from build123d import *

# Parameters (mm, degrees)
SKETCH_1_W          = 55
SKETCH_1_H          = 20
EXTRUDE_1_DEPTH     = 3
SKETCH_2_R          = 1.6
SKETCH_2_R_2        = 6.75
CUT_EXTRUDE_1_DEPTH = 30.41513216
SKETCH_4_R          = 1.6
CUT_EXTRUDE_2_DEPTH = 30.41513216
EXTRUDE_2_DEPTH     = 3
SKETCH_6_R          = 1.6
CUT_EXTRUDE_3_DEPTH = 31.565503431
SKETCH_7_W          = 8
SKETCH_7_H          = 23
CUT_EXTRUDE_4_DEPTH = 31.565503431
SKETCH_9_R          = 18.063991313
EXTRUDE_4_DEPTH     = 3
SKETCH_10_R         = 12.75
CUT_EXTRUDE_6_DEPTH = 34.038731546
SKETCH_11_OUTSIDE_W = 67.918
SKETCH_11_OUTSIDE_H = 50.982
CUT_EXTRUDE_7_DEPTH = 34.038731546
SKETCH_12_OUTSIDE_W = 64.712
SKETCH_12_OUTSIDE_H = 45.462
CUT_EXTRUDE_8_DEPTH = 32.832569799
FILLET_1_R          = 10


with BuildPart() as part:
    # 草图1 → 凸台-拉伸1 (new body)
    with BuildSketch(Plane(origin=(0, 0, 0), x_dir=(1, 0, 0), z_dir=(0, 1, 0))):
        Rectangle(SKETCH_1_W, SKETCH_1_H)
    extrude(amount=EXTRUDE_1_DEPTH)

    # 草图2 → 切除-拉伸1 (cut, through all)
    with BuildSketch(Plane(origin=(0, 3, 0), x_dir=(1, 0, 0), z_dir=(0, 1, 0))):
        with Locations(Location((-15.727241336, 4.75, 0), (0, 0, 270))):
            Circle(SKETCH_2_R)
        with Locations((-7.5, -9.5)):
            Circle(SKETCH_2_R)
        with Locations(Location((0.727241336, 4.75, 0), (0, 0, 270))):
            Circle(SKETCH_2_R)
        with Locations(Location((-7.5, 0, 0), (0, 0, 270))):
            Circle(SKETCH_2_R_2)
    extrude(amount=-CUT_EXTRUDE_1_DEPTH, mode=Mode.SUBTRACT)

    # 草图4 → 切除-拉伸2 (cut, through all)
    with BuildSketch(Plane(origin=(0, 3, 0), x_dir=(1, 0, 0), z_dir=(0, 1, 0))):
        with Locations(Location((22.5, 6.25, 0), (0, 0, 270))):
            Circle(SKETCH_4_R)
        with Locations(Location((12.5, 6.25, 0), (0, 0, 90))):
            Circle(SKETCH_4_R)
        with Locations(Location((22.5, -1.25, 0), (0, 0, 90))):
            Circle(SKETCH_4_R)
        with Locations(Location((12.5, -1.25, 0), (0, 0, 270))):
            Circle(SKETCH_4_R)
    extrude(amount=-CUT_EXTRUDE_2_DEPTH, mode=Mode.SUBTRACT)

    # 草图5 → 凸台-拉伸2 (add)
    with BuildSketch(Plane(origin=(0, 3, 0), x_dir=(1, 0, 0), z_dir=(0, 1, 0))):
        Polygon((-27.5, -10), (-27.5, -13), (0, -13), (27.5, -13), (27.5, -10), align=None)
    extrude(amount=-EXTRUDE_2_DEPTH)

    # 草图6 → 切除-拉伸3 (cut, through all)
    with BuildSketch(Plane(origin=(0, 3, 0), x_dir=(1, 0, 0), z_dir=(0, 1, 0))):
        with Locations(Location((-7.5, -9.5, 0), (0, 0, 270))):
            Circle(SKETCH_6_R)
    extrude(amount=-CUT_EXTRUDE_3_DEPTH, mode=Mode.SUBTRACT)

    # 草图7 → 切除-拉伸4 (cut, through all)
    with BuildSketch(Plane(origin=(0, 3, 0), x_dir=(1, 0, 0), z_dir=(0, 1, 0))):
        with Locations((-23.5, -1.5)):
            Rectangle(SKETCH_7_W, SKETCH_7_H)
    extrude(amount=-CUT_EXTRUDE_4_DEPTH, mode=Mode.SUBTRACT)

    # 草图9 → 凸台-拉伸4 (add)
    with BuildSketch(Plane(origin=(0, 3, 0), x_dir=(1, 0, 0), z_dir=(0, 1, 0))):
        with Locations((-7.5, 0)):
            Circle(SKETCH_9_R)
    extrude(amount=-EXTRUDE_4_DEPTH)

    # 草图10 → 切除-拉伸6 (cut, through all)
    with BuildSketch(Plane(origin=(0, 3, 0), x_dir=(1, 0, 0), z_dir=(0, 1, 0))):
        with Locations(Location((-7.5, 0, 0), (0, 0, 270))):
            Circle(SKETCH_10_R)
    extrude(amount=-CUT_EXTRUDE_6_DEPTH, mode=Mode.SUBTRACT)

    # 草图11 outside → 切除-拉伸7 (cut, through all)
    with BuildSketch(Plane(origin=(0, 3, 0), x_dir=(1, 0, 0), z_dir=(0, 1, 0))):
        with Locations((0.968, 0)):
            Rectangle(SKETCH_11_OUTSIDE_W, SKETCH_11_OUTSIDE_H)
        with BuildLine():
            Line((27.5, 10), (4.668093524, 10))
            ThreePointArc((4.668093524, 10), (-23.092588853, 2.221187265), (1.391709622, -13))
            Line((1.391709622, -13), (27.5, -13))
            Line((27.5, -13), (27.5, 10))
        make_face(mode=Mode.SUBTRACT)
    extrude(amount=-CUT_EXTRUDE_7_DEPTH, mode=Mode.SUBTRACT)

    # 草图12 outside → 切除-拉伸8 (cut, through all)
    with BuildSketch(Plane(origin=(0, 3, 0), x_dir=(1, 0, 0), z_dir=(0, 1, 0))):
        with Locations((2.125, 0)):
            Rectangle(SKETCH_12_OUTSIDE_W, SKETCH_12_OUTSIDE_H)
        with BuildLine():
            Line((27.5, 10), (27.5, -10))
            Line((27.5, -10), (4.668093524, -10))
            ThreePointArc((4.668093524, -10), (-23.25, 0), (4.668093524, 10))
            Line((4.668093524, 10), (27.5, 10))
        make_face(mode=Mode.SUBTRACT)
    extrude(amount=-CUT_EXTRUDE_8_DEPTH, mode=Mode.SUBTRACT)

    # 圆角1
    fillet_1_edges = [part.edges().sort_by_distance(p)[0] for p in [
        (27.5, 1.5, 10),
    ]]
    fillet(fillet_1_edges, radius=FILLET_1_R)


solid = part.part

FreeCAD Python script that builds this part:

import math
import FreeCAD as App
import Part
import Sketcher

V = App.Vector


def edges_at(feature, points):
    """Names of the edges that pass closest to the given points."""
    edges = feature.Shape.Edges
    near = lambda p: min(range(len(edges)), key=lambda i: edges[i].distToShape(Part.Vertex(*p))[0])
    return sorted({f"Edge{near(p) + 1}" for p in points})

doc = App.newDocument("Part")
body = doc.addObject("PartDesign::Body", "Body")

# Sketch on XZ plane
sketch1 = doc.addObject("Sketcher::SketchObject", "Sketch")
body.addObject(sketch1)
sketch1.AttachmentSupport = (doc.XZ_Plane, [""])
sketch1.MapMode = "FlatFace"
sketch1.addGeometry([
    Part.LineSegment(V(-28, -10, 0), V(-28, 10, 0)),
    Part.LineSegment(V(-28, 10, 0), V(28, 10, 0)),
    Part.LineSegment(V(28, 10, 0), V(28, -10, 0)),
    Part.LineSegment(V(28, -10, 0), V(-28, -10, 0)),
], False)
sketch1.addConstraint([
    Sketcher.Constraint("Coincident", 0, 2, 1, 1),
    Sketcher.Constraint("Coincident", 1, 2, 2, 1),
    Sketcher.Constraint("Coincident", 2, 2, 3, 1),
    Sketcher.Constraint("Coincident", 3, 2, 0, 1),
    Sketcher.Constraint("Vertical", 0),
    Sketcher.Constraint("Horizontal", 1),
    Sketcher.Constraint("Vertical", 2),
    Sketcher.Constraint("Horizontal", 3),
    Sketcher.Constraint("Symmetric", 0, 2, 2, 2, -1, 1),
    Sketcher.Constraint("DistanceX", 1, 1, 1, 2, 55.0),
    Sketcher.Constraint("DistanceY", 0, 1, 0, 2, 20.0),
])
pad1 = doc.addObject("PartDesign::Pad", "Pad")
body.addObject(pad1)
pad1.Profile = sketch1
pad1.Length = 3
pad1.Reversed = True

# Sketch on XZ plane
sketch2 = doc.addObject("Sketcher::SketchObject", "Sketch001")
body.addObject(sketch2)
sketch2.AttachmentSupport = (doc.XZ_Plane, [""])
sketch2.MapMode = "FlatFace"
sketch2.AttachmentOffset = App.Placement(V(0, 0, -3), App.Rotation())
sketch2.addGeometry([
    Part.Circle(V(-15.7, -4.8, 0), V(0, 0, 1), 1.6),
    Part.Circle(V(-7.5, 9.5, 0), V(0, 0, 1), 1.6),
    Part.Circle(V(0.7, -4.8, 0), V(0, 0, 1), 1.6),
    Part.Circle(V(-7.5, 0, 0), V(0, 0, 1), 6.8),
], False)
sketch2.addConstraint([
    Sketcher.Constraint("Equal", 0, 1),
    Sketcher.Constraint("Equal", 1, 2),
    Sketcher.Constraint("PointOnObject", 3, 3, -1),
    Sketcher.Constraint("Horizontal", 0, 3, 2, 3),
    Sketcher.Constraint("Vertical", 1, 3, 3, 3),
    Sketcher.Constraint("Diameter", 0, 3.2),
    Sketcher.Constraint("Diameter", 3, 13.5),
    Sketcher.Constraint("DistanceX", 1, 3, -1, 1, 7.5),
    Sketcher.Constraint("DistanceY", -1, 1, 1, 3, 9.5),
    Sketcher.Constraint("DistanceY", 0, 3, -1, 1, 4.75),
    Sketcher.Constraint("DistanceX", 0, 3, -1, 1, 15.727241),
    Sketcher.Constraint("DistanceX", -1, 1, 2, 3, 0.727241),
])
pocket1 = doc.addObject("PartDesign::Pocket", "Pocket")
body.addObject(pocket1)
pocket1.Profile = sketch2
pocket1.Type = "ThroughAll"
pocket1.Reversed = True

# Sketch on XZ plane
sketch3 = doc.addObject("Sketcher::SketchObject", "Sketch002")
body.addObject(sketch3)
sketch3.AttachmentSupport = (doc.XZ_Plane, [""])
sketch3.MapMode = "FlatFace"
sketch3.AttachmentOffset = App.Placement(V(0, 0, -3), App.Rotation())
sketch3.addGeometry([
    Part.Circle(V(22.5, -6.2, 0), V(0, 0, 1), 1.6),
    Part.Circle(V(12.5, -6.2, 0), V(0, 0, 1), 1.6),
    Part.Circle(V(22.5, 1.2, 0), V(0, 0, 1), 1.6),
    Part.Circle(V(12.5, 1.2, 0), V(0, 0, 1), 1.6),
], False)
sketch3.addConstraint([
    Sketcher.Constraint("Equal", 0, 1),
    Sketcher.Constraint("Equal", 1, 2),
    Sketcher.Constraint("Equal", 2, 3),
    Sketcher.Constraint("Horizontal", 0, 3, 1, 3),
    Sketcher.Constraint("Horizontal", 2, 3, 3, 3),
    Sketcher.Constraint("Vertical", 0, 3, 2, 3),
    Sketcher.Constraint("Vertical", 1, 3, 3, 3),
    Sketcher.Constraint("Diameter", 0, 3.2),
    Sketcher.Constraint("DistanceX", 1, 3, 0, 3, 10.0),
    Sketcher.Constraint("DistanceX", -1, 1, 0, 3, 22.5),
    Sketcher.Constraint("DistanceY", 0, 3, 2, 3, 7.5),
    Sketcher.Constraint("DistanceY", 0, 3, -1, 1, 6.25),
])
pocket2 = doc.addObject("PartDesign::Pocket", "Pocket001")
body.addObject(pocket2)
pocket2.Profile = sketch3
pocket2.Type = "ThroughAll"
pocket2.Reversed = True

# Sketch on XZ plane
sketch4 = doc.addObject("Sketcher::SketchObject", "Sketch003")
body.addObject(sketch4)
sketch4.AttachmentSupport = (doc.XZ_Plane, [""])
sketch4.MapMode = "FlatFace"
sketch4.AttachmentOffset = App.Placement(V(0, 0, -3), App.Rotation())
sketch4.addGeometry([
    Part.LineSegment(V(-27.5, 10, 0), V(-27.5, 13, 0)),
    Part.LineSegment(V(-27.5, 13, 0), V(27.5, 13, 0)),
    Part.LineSegment(V(27.5, 13, 0), V(27.5, 10, 0)),
    Part.LineSegment(V(27.5, 10, 0), V(-27.5, 10, 0)),
], False)
sketch4.addConstraint([
    Sketcher.Constraint("Coincident", 0, 2, 1, 1),
    Sketcher.Constraint("Coincident", 1, 2, 2, 1),
    Sketcher.Constraint("Coincident", 2, 2, 3, 1),
    Sketcher.Constraint("Coincident", 3, 2, 0, 1),
    Sketcher.Constraint("Vertical", 0),
    Sketcher.Constraint("Horizontal", 1),
    Sketcher.Constraint("Vertical", 2),
    Sketcher.Constraint("Horizontal", 3),
    Sketcher.Constraint("DistanceX", 1, 1, 1, 2, 55.0),
    Sketcher.Constraint("DistanceY", 0, 1, 0, 2, 3.0),
    Sketcher.Constraint("DistanceY", -1, 1, 0, 2, 13.0),
    Sketcher.Constraint("DistanceX", 0, 2, -1, 1, 27.5),
])
pad2 = doc.addObject("PartDesign::Pad", "Pad001")
body.addObject(pad2)
pad2.Profile = sketch4
pad2.Length = 3

# Sketch on XZ plane
sketch5 = doc.addObject("Sketcher::SketchObject", "Sketch004")
body.addObject(sketch5)
sketch5.AttachmentSupport = (doc.XZ_Plane, [""])
sketch5.MapMode = "FlatFace"
sketch5.AttachmentOffset = App.Placement(V(0, 0, -3), App.Rotation())
sketch5.addGeometry(Part.Circle(V(-7.5, 9.5, 0), V(0, 0, 1), 1.6), False)
sketch5.addConstraint([
    Sketcher.Constraint("Diameter", 0, 3.2),
    Sketcher.Constraint("DistanceX", 0, 3, -1, 1, 7.5),
    Sketcher.Constraint("DistanceY", -1, 1, 0, 3, 9.5),
])
pocket3 = doc.addObject("PartDesign::Pocket", "Pocket002")
body.addObject(pocket3)
pocket3.Profile = sketch5
pocket3.Type = "ThroughAll"
pocket3.Reversed = True

# Sketch on XZ plane
sketch6 = doc.addObject("Sketcher::SketchObject", "Sketch005")
body.addObject(sketch6)
sketch6.AttachmentSupport = (doc.XZ_Plane, [""])
sketch6.MapMode = "FlatFace"
sketch6.AttachmentOffset = App.Placement(V(0, 0, -3), App.Rotation())
sketch6.addGeometry([
    Part.LineSegment(V(-28, -10, 0), V(-28, 13, 0)),
    Part.LineSegment(V(-28, 13, 0), V(-20, 13, 0)),
    Part.LineSegment(V(-20, 13, 0), V(-20, -10, 0)),
    Part.LineSegment(V(-20, -10, 0), V(-28, -10, 0)),
], False)
sketch6.addConstraint([
    Sketcher.Constraint("Coincident", 0, 2, 1, 1),
    Sketcher.Constraint("Coincident", 1, 2, 2, 1),
    Sketcher.Constraint("Coincident", 2, 2, 3, 1),
    Sketcher.Constraint("Coincident", 3, 2, 0, 1),
    Sketcher.Constraint("Vertical", 0),
    Sketcher.Constraint("Horizontal", 1),
    Sketcher.Constraint("Vertical", 2),
    Sketcher.Constraint("Horizontal", 3),
    Sketcher.Constraint("DistanceX", 1, 1, 1, 2, 8.0),
    Sketcher.Constraint("DistanceY", 0, 1, 0, 2, 23.0),
    Sketcher.Constraint("DistanceY", -1, 1, 0, 2, 13.0),
    Sketcher.Constraint("DistanceX", 0, 2, -1, 1, 27.5),
])
pocket4 = doc.addObject("PartDesign::Pocket", "Pocket003")
body.addObject(pocket4)
pocket4.Profile = sketch6
pocket4.Type = "ThroughAll"
pocket4.Reversed = True

# Sketch on XZ plane
sketch7 = doc.addObject("Sketcher::SketchObject", "Sketch006")
body.addObject(sketch7)
sketch7.AttachmentSupport = (doc.XZ_Plane, [""])
sketch7.MapMode = "FlatFace"
sketch7.AttachmentOffset = App.Placement(V(0, 0, -3), App.Rotation())
sketch7.addGeometry(Part.Circle(V(-8, 0, 0), V(0, 0, 1), 18), False)
sketch7.addConstraint([
    Sketcher.Constraint("PointOnObject", 0, 3, -1),
    Sketcher.Constraint("DistanceX", 0, 3, -1, 1, 7.5),
    Sketcher.Constraint("Diameter", 0, 36.127983),
])
pad3 = doc.addObject("PartDesign::Pad", "Pad002")
body.addObject(pad3)
pad3.Profile = sketch7
pad3.Length = 3

# Sketch on XZ plane
sketch8 = doc.addObject("Sketcher::SketchObject", "Sketch007")
body.addObject(sketch8)
sketch8.AttachmentSupport = (doc.XZ_Plane, [""])
sketch8.MapMode = "FlatFace"
sketch8.AttachmentOffset = App.Placement(V(0, 0, -3), App.Rotation())
sketch8.addGeometry(Part.Circle(V(-8, 0, 0), V(0, 0, 1), 13), False)
sketch8.addConstraint([
    Sketcher.Constraint("PointOnObject", 0, 3, -1),
    Sketcher.Constraint("Diameter", 0, 25.5),
    Sketcher.Constraint("DistanceX", 0, 3, -1, 1, 7.5),
])
pocket5 = doc.addObject("PartDesign::Pocket", "Pocket004")
body.addObject(pocket5)
pocket5.Profile = sketch8
pocket5.Type = "ThroughAll"
pocket5.Reversed = True

# Sketch on XZ plane
sketch9 = doc.addObject("Sketcher::SketchObject", "Sketch008")
body.addObject(sketch9)
sketch9.AttachmentSupport = (doc.XZ_Plane, [""])
sketch9.MapMode = "FlatFace"
sketch9.AttachmentOffset = App.Placement(V(0, 0, -3), App.Rotation())
sketch9.addGeometry([
    Part.LineSegment(V(-33, -25, 0), V(-33, 25, 0)),  # 0
    Part.LineSegment(V(-33, 25, 0), V(35, 25, 0)),  # 1
    Part.LineSegment(V(35, 25, 0), V(35, -25, 0)),  # 2
    Part.LineSegment(V(35, -25, 0), V(-33, -25, 0)),  # 3
    Part.LineSegment(V(5, -10, 0), V(28, -10, 0)),  # 4
    Part.LineSegment(V(28, -10, 0), V(28, 13, 0)),  # 5
    Part.LineSegment(V(28, 13, 0), V(1, 13, 0)),  # 6
    Part.ArcOfCircle(Part.Circle(V(-8, 0, 0), V(0, 0, 1), 16), math.radians(56), math.radians(321)),  # 7
], False)
sketch9.addConstraint([
    Sketcher.Constraint("Coincident", 0, 2, 1, 1),
    Sketcher.Constraint("Coincident", 1, 2, 2, 1),
    Sketcher.Constraint("Coincident", 2, 2, 3, 1),
    Sketcher.Constraint("Coincident", 3, 2, 0, 1),
    Sketcher.Constraint("Coincident", 4, 2, 5, 1),
    Sketcher.Constraint("Coincident", 5, 2, 6, 1),
    Sketcher.Constraint("Coincident", 6, 2, 7, 1),
    Sketcher.Constraint("Coincident", 7, 2, 4, 1),
    Sketcher.Constraint("Vertical", 0),
    Sketcher.Constraint("Horizontal", 1),
    Sketcher.Constraint("Vertical", 2),
    Sketcher.Constraint("Horizontal", 3),
    Sketcher.Constraint("Horizontal", 4),
    Sketcher.Constraint("Vertical", 5),
    Sketcher.Constraint("Horizontal", 6),
    Sketcher.Constraint("PointOnObject", 7, 3, -1),
    Sketcher.Constraint("DistanceY", 5, 1, 5, 2, 23.0),
    Sketcher.Constraint("Radius", 7, 15.75),
    Sketcher.Constraint("DistanceY", 4, 2, -1, 1, 10.0),
    Sketcher.Constraint("DistanceX", 7, 3, 4, 2, 35.0),
    Sketcher.Constraint("DistanceX", 7, 3, -1, 1, 7.5),
    Sketcher.Constraint("DistanceX", 1, 1, 1, 2, 67.918),
    Sketcher.Constraint("DistanceY", 0, 1, 0, 2, 50.982),
    Sketcher.Constraint("DistanceX", 0, 2, -1, 1, 32.991),
    Sketcher.Constraint("DistanceY", -1, 1, 0, 2, 25.491),
])
pocket6 = doc.addObject("PartDesign::Pocket", "Pocket005")
body.addObject(pocket6)
pocket6.Profile = sketch9
pocket6.Type = "ThroughAll"
pocket6.Reversed = True

# Sketch on XZ plane
sketch10 = doc.addObject("Sketcher::SketchObject", "Sketch009")
body.addObject(sketch10)
sketch10.AttachmentSupport = (doc.XZ_Plane, [""])
sketch10.MapMode = "FlatFace"
sketch10.AttachmentOffset = App.Placement(V(0, 0, -3), App.Rotation())
sketch10.addGeometry([
    Part.LineSegment(V(-30, -23, 0), V(-30, 23, 0)),  # 0
    Part.LineSegment(V(-30, 23, 0), V(34, 23, 0)),  # 1
    Part.LineSegment(V(34, 23, 0), V(34, -23, 0)),  # 2
    Part.LineSegment(V(34, -23, 0), V(-30, -23, 0)),  # 3
    Part.LineSegment(V(5, -10, 0), V(28, -10, 0)),  # 4
    Part.LineSegment(V(28, -10, 0), V(28, 10, 0)),  # 5
    Part.LineSegment(V(28, 10, 0), V(5, 10, 0)),  # 6
    Part.ArcOfCircle(Part.Circle(V(-8, 0, 0), V(0, 0, 1), 16), math.radians(39), math.radians(321)),  # 7
], False)
sketch10.addConstraint([
    Sketcher.Constraint("Coincident", 0, 2, 1, 1),
    Sketcher.Constraint("Coincident", 1, 2, 2, 1),
    Sketcher.Constraint("Coincident", 2, 2, 3, 1),
    Sketcher.Constraint("Coincident", 3, 2, 0, 1),
    Sketcher.Constraint("Coincident", 4, 2, 5, 1),
    Sketcher.Constraint("Coincident", 5, 2, 6, 1),
    Sketcher.Constraint("Coincident", 6, 2, 7, 1),
    Sketcher.Constraint("Coincident", 7, 2, 4, 1),
    Sketcher.Constraint("Vertical", 0),
    Sketcher.Constraint("Horizontal", 1),
    Sketcher.Constraint("Vertical", 2),
    Sketcher.Constraint("Horizontal", 3),
    Sketcher.Constraint("Horizontal", 4),
    Sketcher.Constraint("Vertical", 5),
    Sketcher.Constraint("Horizontal", 6),
    Sketcher.Constraint("Symmetric", 6, 2, 7, 2, -1),
    Sketcher.Constraint("DistanceY", 5, 1, 5, 2, 20.0),
    Sketcher.Constraint("Radius", 7, 15.75),
    Sketcher.Constraint("DistanceX", 7, 3, 4, 2, 35.0),
    Sketcher.Constraint("DistanceX", 7, 3, -1, 1, 7.5),
    Sketcher.Constraint("DistanceX", 1, 1, 1, 2, 64.712),
    Sketcher.Constraint("DistanceY", 0, 1, 0, 2, 45.462),
    Sketcher.Constraint("DistanceX", 0, 2, -1, 1, 30.231),
    Sketcher.Constraint("DistanceY", -1, 1, 0, 2, 22.731),
])
pocket7 = doc.addObject("PartDesign::Pocket", "Pocket006")
body.addObject(pocket7)
pocket7.Profile = sketch10
pocket7.Type = "ThroughAll"
pocket7.Reversed = True
doc.recompute()

fillet = doc.addObject("PartDesign::Fillet", "Fillet")
body.addObject(fillet)
fillet.Base = (pocket7, edges_at(pocket7, [(27.5, 1.5, 10)]))
fillet.Radius = 10

doc.recompute()
